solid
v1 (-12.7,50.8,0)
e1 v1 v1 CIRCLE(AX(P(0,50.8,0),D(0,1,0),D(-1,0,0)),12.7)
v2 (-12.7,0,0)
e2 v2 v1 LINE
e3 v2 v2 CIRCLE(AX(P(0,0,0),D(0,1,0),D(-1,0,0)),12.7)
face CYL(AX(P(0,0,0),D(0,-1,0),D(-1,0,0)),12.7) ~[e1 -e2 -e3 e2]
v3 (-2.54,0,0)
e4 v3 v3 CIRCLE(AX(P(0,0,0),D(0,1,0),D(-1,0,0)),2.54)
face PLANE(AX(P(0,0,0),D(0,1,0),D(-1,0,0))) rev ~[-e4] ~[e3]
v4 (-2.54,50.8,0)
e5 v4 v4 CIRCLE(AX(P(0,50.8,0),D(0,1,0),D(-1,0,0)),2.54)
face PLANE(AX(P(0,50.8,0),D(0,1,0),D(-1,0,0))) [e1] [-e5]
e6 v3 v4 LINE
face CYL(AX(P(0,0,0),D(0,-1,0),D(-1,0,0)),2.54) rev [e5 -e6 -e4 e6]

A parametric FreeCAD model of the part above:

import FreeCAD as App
import Part
import Sketcher
from FreeCAD import Vector
Q = App.Units.Quantity

doc = App.newDocument("Part")
params = doc.addObject("Spreadsheet::Sheet", "Params")
for row, (alias, value) in enumerate([
    ("sketch1_diameter", "1 in"),
    ("sketch1_diameter2", "0.2 in"),
    ("pad1_length", "2 in"),
], start=1):
    params.set(f"A{row}", alias)
    params.set(f"B{row}", "=" + value)
    params.setAlias(f"B{row}", alias)

body = doc.addObject("PartDesign::Body", "Body")

# Sketch on XZ plane
sketch1 = body.newObject("Sketcher::SketchObject", "Sketch")
sketch1.AttachmentSupport = (doc.getObject("XZ_Plane"), [""])
sketch1.MapMode = "FlatFace"
sketch1.addGeometry(Part.Circle(Vector(0, 0, 0), Vector(0, 0, 1), 12.7), False)
sketch1.addGeometry(Part.Circle(Vector(0, 0, 0), Vector(0, 0, 1), 2.5), False)
sketch1.addConstraint(Sketcher.Constraint("Coincident", 0, 3, -1, 1))
sketch1.addConstraint(Sketcher.Constraint("Coincident", 1, 3, -1, 1))
sketch1.addConstraint(Sketcher.Constraint("Diameter", 0, Q("1 in")))
sketch1.addConstraint(Sketcher.Constraint("Diameter", 1, Q("0.2 in")))
sketch1.setExpression("Constraints[2]", "Params.sketch1_diameter")
sketch1.setExpression("Constraints[3]", "Params.sketch1_diameter2")
pad1 = body.newObject("PartDesign::Pad", "Pad")
pad1.Profile = sketch1
pad1.setExpression("Length", "Params.pad1_length")
pad1.Reversed = True

doc.recompute()
